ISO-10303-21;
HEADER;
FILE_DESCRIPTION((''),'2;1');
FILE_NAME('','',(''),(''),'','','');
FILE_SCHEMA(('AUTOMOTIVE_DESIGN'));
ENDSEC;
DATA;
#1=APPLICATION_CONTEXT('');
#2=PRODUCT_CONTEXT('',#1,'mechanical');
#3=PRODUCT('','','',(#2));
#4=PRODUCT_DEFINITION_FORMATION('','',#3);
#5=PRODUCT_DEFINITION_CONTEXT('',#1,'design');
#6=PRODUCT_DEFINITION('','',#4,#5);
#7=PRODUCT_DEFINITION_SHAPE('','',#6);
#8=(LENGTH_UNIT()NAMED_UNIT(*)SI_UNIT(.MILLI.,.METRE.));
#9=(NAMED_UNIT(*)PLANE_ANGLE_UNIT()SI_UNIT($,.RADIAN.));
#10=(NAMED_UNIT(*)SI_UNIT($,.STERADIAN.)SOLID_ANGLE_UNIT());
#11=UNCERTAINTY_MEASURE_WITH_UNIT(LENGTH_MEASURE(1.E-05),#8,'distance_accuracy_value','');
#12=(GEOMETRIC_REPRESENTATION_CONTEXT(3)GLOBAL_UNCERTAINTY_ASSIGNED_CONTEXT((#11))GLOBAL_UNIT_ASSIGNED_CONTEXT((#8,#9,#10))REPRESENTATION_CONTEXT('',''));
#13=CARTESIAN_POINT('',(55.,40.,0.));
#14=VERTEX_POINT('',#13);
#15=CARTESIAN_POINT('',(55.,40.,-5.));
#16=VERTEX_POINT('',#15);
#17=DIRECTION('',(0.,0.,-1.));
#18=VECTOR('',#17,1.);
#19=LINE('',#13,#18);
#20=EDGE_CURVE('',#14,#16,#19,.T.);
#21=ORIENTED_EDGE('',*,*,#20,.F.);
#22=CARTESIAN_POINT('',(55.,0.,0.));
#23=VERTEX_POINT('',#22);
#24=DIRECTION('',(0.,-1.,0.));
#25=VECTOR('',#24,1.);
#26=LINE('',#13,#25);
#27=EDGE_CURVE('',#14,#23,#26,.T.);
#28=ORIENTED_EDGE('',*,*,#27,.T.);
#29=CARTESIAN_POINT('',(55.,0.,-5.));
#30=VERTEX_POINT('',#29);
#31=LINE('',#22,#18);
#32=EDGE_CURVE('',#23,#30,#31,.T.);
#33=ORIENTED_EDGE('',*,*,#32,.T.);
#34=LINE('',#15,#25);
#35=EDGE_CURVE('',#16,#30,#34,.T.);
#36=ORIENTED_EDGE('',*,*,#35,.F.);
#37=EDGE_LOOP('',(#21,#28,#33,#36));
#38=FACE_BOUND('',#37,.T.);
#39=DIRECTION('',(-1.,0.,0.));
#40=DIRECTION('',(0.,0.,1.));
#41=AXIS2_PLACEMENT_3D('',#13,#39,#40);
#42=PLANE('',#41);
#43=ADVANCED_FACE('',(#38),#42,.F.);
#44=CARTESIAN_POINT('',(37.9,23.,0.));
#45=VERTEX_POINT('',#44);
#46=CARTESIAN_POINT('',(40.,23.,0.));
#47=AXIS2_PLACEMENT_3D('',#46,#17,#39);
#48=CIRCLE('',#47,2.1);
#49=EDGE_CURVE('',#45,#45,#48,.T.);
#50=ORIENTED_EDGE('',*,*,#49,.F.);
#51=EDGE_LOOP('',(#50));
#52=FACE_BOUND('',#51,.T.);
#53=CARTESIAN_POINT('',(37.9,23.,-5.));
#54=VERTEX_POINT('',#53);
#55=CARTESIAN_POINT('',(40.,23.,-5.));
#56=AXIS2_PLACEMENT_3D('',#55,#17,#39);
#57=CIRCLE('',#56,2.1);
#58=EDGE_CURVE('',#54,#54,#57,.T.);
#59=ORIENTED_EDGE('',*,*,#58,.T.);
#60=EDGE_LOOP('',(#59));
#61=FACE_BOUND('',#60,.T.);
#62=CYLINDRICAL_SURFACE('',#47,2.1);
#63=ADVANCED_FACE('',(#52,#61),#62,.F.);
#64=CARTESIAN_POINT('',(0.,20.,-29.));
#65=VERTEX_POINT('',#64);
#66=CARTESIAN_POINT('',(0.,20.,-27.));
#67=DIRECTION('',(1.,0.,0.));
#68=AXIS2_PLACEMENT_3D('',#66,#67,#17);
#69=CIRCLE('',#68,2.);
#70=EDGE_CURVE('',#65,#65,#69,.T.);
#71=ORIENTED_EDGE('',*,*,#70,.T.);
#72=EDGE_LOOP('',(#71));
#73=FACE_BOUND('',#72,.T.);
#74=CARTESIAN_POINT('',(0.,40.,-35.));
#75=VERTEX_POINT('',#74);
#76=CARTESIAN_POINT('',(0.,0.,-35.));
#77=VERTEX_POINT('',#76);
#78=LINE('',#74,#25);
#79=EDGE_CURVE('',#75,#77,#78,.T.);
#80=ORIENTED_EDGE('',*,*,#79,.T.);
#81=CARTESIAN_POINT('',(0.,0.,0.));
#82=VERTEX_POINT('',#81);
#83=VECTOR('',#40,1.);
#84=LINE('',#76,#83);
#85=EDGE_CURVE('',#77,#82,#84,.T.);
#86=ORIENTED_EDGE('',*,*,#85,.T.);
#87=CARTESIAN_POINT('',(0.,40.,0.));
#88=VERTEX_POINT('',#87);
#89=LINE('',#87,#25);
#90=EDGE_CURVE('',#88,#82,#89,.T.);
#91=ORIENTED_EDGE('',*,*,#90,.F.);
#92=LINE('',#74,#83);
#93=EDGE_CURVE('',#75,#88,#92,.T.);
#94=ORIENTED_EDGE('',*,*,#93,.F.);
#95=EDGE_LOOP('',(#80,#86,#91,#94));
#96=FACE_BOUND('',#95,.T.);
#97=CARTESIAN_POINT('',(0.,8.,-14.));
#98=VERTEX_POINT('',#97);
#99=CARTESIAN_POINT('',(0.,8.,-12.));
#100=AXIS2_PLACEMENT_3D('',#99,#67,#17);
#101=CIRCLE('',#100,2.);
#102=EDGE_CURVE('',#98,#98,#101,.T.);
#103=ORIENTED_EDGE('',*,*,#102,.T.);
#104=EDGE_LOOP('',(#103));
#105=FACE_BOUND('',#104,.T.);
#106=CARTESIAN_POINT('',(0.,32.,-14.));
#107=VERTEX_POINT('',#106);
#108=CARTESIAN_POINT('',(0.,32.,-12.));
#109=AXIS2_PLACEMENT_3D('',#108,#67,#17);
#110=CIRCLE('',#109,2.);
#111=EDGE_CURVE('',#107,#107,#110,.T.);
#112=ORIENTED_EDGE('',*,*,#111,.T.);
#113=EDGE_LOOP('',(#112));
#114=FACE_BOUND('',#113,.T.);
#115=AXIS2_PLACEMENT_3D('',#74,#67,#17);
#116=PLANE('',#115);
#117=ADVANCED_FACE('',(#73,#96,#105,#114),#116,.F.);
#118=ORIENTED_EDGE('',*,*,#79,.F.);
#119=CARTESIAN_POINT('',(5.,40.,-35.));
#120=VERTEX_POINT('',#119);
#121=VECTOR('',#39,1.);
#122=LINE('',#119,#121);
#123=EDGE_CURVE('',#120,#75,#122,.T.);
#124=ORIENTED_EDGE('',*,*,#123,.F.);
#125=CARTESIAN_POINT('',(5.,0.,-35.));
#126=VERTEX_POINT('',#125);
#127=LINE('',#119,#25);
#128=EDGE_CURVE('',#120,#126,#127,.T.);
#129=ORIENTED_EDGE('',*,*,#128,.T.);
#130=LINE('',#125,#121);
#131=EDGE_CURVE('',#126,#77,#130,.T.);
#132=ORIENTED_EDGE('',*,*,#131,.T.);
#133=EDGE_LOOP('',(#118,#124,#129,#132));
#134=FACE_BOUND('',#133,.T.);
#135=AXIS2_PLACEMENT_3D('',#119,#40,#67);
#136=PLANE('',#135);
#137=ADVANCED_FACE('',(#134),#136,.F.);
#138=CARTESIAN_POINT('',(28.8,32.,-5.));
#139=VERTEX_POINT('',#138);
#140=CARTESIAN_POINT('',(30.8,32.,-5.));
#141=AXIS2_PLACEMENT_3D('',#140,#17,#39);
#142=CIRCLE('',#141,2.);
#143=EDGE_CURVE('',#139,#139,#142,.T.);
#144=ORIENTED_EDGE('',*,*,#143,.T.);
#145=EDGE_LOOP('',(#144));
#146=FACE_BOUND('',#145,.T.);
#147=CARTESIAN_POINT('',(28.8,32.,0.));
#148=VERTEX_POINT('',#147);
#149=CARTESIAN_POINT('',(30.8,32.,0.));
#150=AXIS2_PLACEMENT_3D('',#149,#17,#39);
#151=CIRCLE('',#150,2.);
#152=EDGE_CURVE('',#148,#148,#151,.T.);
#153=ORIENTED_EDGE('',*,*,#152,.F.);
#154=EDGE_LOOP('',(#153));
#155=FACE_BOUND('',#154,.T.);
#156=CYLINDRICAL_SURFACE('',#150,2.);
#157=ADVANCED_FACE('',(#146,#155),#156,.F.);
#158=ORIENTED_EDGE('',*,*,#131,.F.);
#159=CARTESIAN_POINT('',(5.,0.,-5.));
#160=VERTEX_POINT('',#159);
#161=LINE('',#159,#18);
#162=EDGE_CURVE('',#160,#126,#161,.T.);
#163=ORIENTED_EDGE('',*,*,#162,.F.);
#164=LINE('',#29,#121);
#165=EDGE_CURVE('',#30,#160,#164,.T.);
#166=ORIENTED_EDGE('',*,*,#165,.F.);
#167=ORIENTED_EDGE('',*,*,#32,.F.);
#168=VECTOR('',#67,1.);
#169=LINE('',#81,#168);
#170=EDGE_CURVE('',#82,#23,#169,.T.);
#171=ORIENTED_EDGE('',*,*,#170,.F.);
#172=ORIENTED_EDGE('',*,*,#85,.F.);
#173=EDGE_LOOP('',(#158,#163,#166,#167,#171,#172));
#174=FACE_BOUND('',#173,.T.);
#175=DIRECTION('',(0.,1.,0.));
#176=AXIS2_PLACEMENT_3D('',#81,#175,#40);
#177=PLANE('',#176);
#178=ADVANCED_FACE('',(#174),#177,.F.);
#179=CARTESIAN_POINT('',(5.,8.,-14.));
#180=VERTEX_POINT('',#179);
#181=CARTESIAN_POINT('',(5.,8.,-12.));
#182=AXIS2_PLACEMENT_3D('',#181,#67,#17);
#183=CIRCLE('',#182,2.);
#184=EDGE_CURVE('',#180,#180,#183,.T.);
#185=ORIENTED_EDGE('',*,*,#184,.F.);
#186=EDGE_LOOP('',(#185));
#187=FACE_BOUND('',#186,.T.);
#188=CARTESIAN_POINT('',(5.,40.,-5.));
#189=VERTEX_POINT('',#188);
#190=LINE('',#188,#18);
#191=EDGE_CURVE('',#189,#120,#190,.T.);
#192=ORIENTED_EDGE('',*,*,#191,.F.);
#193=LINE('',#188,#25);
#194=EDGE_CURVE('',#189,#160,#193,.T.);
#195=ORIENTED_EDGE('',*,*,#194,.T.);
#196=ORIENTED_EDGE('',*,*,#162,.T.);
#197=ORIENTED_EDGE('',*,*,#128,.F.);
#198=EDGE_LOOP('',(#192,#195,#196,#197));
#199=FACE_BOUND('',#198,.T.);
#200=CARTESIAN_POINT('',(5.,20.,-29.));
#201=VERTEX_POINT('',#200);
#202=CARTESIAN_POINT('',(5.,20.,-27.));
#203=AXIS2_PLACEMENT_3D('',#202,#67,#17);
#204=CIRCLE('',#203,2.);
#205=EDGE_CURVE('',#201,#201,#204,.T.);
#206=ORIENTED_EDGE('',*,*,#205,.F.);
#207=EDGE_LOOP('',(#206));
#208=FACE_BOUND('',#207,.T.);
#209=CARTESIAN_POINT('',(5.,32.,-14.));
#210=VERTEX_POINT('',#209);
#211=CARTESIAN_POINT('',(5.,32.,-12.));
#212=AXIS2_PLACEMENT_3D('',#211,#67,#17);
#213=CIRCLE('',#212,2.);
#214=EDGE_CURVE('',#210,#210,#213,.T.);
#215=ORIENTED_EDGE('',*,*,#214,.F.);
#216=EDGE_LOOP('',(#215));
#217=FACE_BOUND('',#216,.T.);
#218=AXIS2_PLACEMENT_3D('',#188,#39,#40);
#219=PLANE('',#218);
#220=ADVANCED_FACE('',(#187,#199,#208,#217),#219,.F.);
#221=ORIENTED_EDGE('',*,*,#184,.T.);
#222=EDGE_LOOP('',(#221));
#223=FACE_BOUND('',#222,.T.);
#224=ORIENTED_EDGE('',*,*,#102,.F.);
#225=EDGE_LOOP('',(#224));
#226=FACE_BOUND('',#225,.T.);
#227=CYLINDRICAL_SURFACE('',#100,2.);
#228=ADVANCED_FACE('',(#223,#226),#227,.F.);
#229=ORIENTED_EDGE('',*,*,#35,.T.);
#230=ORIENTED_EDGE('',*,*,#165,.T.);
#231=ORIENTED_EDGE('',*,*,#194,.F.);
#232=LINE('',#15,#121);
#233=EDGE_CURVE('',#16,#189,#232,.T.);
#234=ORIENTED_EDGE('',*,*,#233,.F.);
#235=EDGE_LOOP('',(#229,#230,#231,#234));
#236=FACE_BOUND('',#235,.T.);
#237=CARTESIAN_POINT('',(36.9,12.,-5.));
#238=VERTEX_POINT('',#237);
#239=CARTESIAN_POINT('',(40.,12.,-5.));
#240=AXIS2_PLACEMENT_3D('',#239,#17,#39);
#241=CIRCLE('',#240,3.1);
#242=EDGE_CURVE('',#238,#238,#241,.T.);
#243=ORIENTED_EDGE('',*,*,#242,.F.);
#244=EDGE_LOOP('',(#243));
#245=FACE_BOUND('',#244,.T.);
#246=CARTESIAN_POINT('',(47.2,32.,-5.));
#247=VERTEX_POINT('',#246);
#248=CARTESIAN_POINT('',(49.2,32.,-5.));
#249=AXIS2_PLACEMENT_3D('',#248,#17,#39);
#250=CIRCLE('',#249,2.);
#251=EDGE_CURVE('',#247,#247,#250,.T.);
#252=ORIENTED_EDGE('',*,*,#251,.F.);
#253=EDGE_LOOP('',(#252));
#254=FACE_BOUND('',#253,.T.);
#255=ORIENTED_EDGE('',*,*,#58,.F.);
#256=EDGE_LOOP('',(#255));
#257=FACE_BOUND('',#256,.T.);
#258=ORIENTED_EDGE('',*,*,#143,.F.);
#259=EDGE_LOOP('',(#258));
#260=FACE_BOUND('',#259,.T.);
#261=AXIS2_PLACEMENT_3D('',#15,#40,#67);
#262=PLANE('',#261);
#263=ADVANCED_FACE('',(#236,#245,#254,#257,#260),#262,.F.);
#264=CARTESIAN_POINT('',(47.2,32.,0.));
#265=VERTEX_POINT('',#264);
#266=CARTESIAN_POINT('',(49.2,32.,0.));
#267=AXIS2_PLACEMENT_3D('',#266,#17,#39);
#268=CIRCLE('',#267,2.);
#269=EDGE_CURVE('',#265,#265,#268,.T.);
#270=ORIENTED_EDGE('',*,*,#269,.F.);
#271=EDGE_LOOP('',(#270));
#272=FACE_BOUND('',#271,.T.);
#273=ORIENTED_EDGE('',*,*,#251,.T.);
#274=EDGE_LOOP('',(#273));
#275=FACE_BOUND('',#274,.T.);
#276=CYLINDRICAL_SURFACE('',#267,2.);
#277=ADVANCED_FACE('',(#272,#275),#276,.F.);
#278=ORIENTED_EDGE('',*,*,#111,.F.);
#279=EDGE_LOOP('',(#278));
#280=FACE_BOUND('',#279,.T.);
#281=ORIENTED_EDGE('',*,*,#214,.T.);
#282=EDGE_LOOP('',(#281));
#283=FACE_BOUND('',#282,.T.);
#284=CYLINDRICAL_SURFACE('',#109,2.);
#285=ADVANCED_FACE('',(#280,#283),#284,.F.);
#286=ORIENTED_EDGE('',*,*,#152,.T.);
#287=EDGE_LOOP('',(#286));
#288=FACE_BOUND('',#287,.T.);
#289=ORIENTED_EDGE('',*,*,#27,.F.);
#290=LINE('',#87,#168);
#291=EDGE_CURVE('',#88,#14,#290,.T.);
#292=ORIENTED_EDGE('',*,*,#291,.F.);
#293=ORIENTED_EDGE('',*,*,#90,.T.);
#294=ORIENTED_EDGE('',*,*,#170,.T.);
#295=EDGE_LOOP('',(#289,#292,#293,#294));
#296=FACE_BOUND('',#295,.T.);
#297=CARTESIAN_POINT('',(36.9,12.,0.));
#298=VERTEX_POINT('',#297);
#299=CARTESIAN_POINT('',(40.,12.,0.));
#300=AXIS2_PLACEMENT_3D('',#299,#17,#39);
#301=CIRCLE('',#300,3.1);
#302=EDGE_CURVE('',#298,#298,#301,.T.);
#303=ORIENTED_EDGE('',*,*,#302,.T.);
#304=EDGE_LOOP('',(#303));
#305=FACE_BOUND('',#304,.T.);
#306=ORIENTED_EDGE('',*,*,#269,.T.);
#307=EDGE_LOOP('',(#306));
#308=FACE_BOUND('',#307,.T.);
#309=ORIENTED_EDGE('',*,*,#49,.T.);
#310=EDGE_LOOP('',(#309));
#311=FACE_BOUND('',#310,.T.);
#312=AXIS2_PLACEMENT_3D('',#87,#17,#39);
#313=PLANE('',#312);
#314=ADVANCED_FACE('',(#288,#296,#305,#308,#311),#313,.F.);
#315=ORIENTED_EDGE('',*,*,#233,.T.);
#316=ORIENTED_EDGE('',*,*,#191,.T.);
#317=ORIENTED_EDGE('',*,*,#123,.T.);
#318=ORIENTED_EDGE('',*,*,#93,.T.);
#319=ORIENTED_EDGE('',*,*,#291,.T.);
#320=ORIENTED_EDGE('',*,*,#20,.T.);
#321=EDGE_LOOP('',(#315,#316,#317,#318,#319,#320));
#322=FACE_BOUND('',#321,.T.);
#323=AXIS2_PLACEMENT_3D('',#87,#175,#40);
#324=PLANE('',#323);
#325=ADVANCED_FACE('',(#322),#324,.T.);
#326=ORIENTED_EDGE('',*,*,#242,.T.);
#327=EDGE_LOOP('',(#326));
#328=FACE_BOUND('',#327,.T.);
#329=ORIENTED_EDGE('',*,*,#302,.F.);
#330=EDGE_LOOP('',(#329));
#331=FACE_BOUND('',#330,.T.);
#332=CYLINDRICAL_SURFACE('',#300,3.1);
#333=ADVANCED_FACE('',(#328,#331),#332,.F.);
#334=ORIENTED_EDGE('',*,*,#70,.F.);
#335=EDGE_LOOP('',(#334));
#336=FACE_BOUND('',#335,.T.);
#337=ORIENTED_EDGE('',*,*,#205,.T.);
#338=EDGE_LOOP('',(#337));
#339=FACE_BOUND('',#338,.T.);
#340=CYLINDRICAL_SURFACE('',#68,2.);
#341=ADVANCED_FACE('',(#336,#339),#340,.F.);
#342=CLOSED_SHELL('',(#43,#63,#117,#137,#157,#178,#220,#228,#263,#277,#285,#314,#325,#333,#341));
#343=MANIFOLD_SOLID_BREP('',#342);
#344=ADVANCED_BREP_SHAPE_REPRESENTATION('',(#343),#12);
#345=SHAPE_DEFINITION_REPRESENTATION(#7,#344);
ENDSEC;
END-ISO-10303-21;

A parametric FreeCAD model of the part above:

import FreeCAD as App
import Part
import Sketcher

V = App.Vector


def add_polygon(sketch, points):
    """Adds a closed chain of lines whose ends are joined by coincident constraints."""
    first, n = sketch.GeometryCount, len(points)
    for a, b in zip(points, points[1:] + points[:1]):
        sketch.addGeometry(Part.LineSegment(App.Vector(*a, 0), App.Vector(*b, 0)), False)
    for i in range(n):
        sketch.addConstraint(Sketcher.Constraint("Coincident", first + i, 2, first + (i + 1) % n, 1))

doc = App.newDocument("Part")
body = doc.addObject("PartDesign::Body", "Body")

sketch1 = body.newObject("Sketcher::SketchObject", "Sketch")
sketch1.AttachmentSupport = (doc.getObject("XZ_Plane"), [""])
sketch1.MapMode = "FlatFace"
add_polygon(sketch1, [(0, 0), (55, 0), (55, -5), (5, -5), (5, -35), (0, -35)])
sketch1.addConstraint(Sketcher.Constraint("Horizontal", 0))
sketch1.addConstraint(Sketcher.Constraint("Vertical", 1))
sketch1.addConstraint(Sketcher.Constraint("Horizontal", 2))
sketch1.addConstraint(Sketcher.Constraint("Vertical", 3))
sketch1.addConstraint(Sketcher.Constraint("Horizontal", 4))
sketch1.addConstraint(Sketcher.Constraint("Vertical", 5))
sketch1.addConstraint(Sketcher.Constraint("Coincident", 5, 2, -1, 1))
sketch1.addConstraint(Sketcher.Constraint("Equal", 4, 1))
sketch1.addConstraint(Sketcher.Constraint("DistanceX", 0, 1, 0, 2, 55.0))
sketch1.addConstraint(Sketcher.Constraint("DistanceX", 2, 2, 2, 1, 50.0))
sketch1.addConstraint(Sketcher.Constraint("DistanceY", 3, 2, 3, 1, 30.0))
pad1 = body.newObject("PartDesign::Pad", "Pad")
pad1.Profile = sketch1
pad1.Length = 40
pad1.Reversed = True

sketch2 = body.newObject("Sketcher::SketchObject", "Sketch001")
sketch2.AttachmentSupport = (doc.getObject("XY_Plane"), [""])
sketch2.MapMode = "FlatFace"
sketch2.AttachmentOffset = App.Placement(V(0, 0, -5), App.Rotation())
sketch2.addGeometry(Part.Circle(V(40, 12, 0), V(0, 0, 1), 3.1), False)
sketch2.addGeometry(Part.Circle(V(40, 23, 0), V(0, 0, 1), 2.1), False)
sketch2.addGeometry(Part.Circle(V(49.2, 32, 0), V(0, 0, 1), 2), False)
sketch2.addGeometry(Part.Circle(V(30.8, 32, 0), V(0, 0, 1), 2), False)
sketch2.addConstraint(Sketcher.Constraint("Equal", 2, 3))
sketch2.addConstraint(Sketcher.Constraint("Horizontal", 2, 3, 3, 3))
sketch2.addConstraint(Sketcher.Constraint("Vertical", 0, 3, 1, 3))
sketch2.addConstraint(Sketcher.Constraint("Diameter", 2, 4.0))
sketch2.addConstraint(Sketcher.Constraint("Diameter", 0, 6.2))
sketch2.addConstraint(Sketcher.Constraint("Diameter", 1, 4.2))
sketch2.addConstraint(Sketcher.Constraint("DistanceX", -1, 1, 0, 3, 40.0))
sketch2.addConstraint(Sketcher.Constraint("DistanceY", -1, 1, 0, 3, 12.0))
sketch2.addConstraint(Sketcher.Constraint("DistanceY", -1, 1, 1, 3, 23.0))
sketch2.addConstraint(Sketcher.Constraint("DistanceY", -1, 1, 2, 3, 32.0))
sketch2.addConstraint(Sketcher.Constraint("DistanceX", -1, 1, 2, 3, 49.2))
sketch2.addConstraint(Sketcher.Constraint("DistanceX", -1, 1, 3, 3, 30.8))
pocket1 = body.newObject("PartDesign::Pocket", "Pocket")
pocket1.Profile = sketch2
pocket1.Type = "ThroughAll"
pocket1.Reversed = True

sketch3 = body.newObject("Sketcher::SketchObject", "Sketch002")
sketch3.AttachmentSupport = (doc.getObject("YZ_Plane"), [""])
sketch3.MapMode = "FlatFace"
sketch3.AttachmentOffset = App.Placement(V(0, 0, 5), App.Rotation())
sketch3.addGeometry(Part.Circle(V(32, -12, 0), V(0, 0, 1), 2), False)
sketch3.addGeometry(Part.Circle(V(20, -27, 0), V(0, 0, 1), 2), False)
sketch3.addGeometry(Part.Circle(V(8, -12, 0), V(0, 0, 1), 2), False)
sketch3.addConstraint(Sketcher.Constraint("Equal", 0, 1))
sketch3.addConstraint(Sketcher.Constraint("Equal", 1, 2))
sketch3.addConstraint(Sketcher.Constraint("Horizontal", 0, 3, 2, 3))
sketch3.addConstraint(Sketcher.Constraint("Diameter", 0, 4.0))
sketch3.addConstraint(Sketcher.Constraint("DistanceX", -1, 1, 0, 3, 32.0))
sketch3.addConstraint(Sketcher.Constraint("DistanceY", 0, 3, -1, 1, 12.0))
sketch3.addConstraint(Sketcher.Constraint("DistanceX", -1, 1, 1, 3, 20.0))
sketch3.addConstraint(Sketcher.Constraint("DistanceY", 1, 3, -1, 1, 27.0))
sketch3.addConstraint(Sketcher.Constraint("DistanceX", -1, 1, 2, 3, 8.0))
pocket2 = body.newObject("PartDesign::Pocket", "Pocket001")
pocket2.Profile = sketch3
pocket2.Type = "ThroughAll"

doc.recompute()
